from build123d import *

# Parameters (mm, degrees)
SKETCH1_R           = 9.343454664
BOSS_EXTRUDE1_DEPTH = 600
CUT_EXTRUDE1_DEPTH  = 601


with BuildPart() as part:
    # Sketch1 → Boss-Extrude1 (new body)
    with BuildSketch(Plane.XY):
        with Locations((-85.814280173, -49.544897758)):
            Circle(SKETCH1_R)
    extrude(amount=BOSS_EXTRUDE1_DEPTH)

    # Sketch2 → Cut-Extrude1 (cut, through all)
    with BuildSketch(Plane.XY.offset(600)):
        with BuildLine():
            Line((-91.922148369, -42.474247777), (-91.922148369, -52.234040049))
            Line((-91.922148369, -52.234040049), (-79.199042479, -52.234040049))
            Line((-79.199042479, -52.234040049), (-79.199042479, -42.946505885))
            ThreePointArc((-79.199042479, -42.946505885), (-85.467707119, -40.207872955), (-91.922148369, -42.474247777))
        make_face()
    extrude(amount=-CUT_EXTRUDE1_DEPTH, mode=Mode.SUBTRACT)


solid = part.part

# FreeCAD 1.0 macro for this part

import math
import FreeCAD as App
import Part
import Sketcher

V = App.Vector
Q = App.Units.Quantity

doc = App.newDocument("Part")
body = doc.addObject("PartDesign::Body", "Body")

sketch1 = body.newObject("Sketcher::SketchObject", "Sketch")
sketch1.AttachmentSupport = (doc.getObject("XY_Plane"), [""])
sketch1.MapMode = "FlatFace"
sketch1.addGeometry(Part.Circle(V(-85.81428, -49.544898, 0), V(0, 0, 1), 9.343455), False)
sketch1.addConstraint([
    Sketcher.Constraint("Diameter", 0, Q("18.686909 mm")),
    Sketcher.Constraint("DistanceX", 0, 3, -1, 1, Q("85.81428 mm")),
    Sketcher.Constraint("DistanceY", 0, 3, -1, 1, Q("49.544898 mm")),
])
pad1 = body.newObject("PartDesign::Pad", "Pad")
pad1.Profile = sketch1
pad1.Length = 600

sketch2 = body.newObject("Sketcher::SketchObject", "Sketch001")
sketch2.AttachmentSupport = (doc.getObject("XY_Plane"), [""])
sketch2.MapMode = "FlatFace"
sketch2.AttachmentOffset = App.Placement(V(0, 0, 600), App.Rotation())
sketch2.addGeometry([
    Part.LineSegment(V(-91.922148, -42.474248, 0), V(-91.922148, -52.23404, 0)),
    Part.LineSegment(V(-91.922148, -52.23404, 0), V(-79.199042, -52.23404, 0)),
    Part.LineSegment(V(-79.199042, -52.23404, 0), V(-79.199042, -42.946506, 0)),
    Part.ArcOfCircle(Part.Circle(V(-85.81428, -49.544898, 0), V(0, 0, 1), 9.343455), math.radians(44.926955), math.radians(130.821571)),
], False)
sketch2.addConstraint([
    Sketcher.Constraint("Coincident", 0, 2, 1, 1),
    Sketcher.Constraint("Coincident", 1, 2, 2, 1),
    Sketcher.Constraint("Coincident", 2, 2, 3, 1),
    Sketcher.Constraint("Coincident", 3, 2, 0, 1),
    Sketcher.Constraint("Vertical", 0),
    Sketcher.Constraint("Horizontal", 1),
    Sketcher.Constraint("Vertical", 2),
    Sketcher.Constraint("Radius", 3, Q("9.343455 mm")),
    Sketcher.Constraint("DistanceX", 1, 1, 1, 2, Q("12.723106 mm")),
    Sketcher.Constraint("DistanceY", 0, 2, 0, 1, Q("9.759792 mm")),
    Sketcher.Constraint("DistanceY", 2, 1, 2, 2, Q("9.287534 mm")),
    Sketcher.Constraint("DistanceX", 3, 3, -1, 1, Q("85.81428 mm")),
    Sketcher.Constraint("DistanceY", 0, 2, -1, 1, Q("52.23404 mm")),
])
pocket1 = body.newObject("PartDesign::Pocket", "Pocket")
pocket1.Profile = sketch2
pocket1.Type = "ThroughAll"

doc.recompute()
